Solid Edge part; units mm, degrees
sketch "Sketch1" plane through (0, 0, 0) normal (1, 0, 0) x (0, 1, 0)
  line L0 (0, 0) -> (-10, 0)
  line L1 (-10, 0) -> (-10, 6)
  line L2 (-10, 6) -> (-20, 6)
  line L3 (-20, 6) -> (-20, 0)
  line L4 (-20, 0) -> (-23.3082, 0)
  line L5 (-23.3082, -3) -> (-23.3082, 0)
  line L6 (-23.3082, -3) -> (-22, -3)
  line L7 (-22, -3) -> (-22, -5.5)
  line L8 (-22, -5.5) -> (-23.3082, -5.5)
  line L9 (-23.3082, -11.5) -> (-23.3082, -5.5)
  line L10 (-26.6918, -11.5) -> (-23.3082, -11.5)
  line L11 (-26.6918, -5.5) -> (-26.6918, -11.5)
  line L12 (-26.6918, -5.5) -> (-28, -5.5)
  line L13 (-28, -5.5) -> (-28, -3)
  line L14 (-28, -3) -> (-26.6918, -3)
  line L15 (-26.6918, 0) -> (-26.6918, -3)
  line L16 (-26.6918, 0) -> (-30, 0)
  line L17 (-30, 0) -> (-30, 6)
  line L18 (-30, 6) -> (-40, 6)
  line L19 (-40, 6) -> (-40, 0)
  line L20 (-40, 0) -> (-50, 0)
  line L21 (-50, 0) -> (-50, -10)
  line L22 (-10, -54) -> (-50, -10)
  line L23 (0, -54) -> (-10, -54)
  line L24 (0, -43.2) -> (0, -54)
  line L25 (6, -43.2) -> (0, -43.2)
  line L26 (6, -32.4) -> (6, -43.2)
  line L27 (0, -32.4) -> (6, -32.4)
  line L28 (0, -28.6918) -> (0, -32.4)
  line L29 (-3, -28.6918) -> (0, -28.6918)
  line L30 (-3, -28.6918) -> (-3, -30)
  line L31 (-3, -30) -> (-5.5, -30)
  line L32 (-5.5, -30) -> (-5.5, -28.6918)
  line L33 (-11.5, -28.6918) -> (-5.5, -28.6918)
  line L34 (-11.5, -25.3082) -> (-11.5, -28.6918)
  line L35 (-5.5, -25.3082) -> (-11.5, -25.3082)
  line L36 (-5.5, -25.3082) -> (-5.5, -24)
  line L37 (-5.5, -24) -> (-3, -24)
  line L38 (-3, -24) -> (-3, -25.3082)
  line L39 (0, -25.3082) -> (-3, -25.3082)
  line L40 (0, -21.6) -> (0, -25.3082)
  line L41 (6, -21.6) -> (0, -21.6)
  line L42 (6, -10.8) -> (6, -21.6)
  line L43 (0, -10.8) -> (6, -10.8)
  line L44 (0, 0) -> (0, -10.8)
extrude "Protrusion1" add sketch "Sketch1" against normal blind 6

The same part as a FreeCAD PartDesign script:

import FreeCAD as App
import Part
import Sketcher
from FreeCAD import Vector
Q = App.Units.Quantity


def add_polygon(sketch, points):
    """Adds a closed chain of lines whose ends are joined by coincident constraints."""
    first, n = sketch.GeometryCount, len(points)
    for a, b in zip(points, points[1:] + points[:1]):
        sketch.addGeometry(Part.LineSegment(App.Vector(*a, 0), App.Vector(*b, 0)), False)
    for i in range(n):
        sketch.addConstraint(Sketcher.Constraint("Coincident", first + i, 2, first + (i + 1) % n, 1))

doc = App.newDocument("Part")
body = doc.addObject("PartDesign::Body", "Body")

sketch1 = body.newObject("Sketcher::SketchObject", "Sketch")
sketch1.AttachmentSupport = (doc.getObject("YZ_Plane"), [""])
sketch1.MapMode = "FlatFace"
add_polygon(sketch1, [(0, -10.8), (0, 0), (-10, 0), (-10, 6), (-20, 6), (-20, 0), (-23.3, 0), (-23.3, -3), (-22, -3), (-22, -5.5), (-23.3, -5.5), (-23.3, -11.5), (-26.7, -11.5), (-26.7, -5.5), (-28, -5.5), (-28, -3), (-26.7, -3), (-26.7, 0), (-30, 0), (-30, 6), (-40, 6), (-40, 0), (-50, 0), (-50, -10), (-10, -54), (0, -54), (0, -43.2), (6, -43.2), (6, -32.4), (0, -32.4), (0, -28.7), (-3, -28.7), (-3, -30), (-5.5, -30), (-5.5, -28.7), (-11.5, -28.7), (-11.5, -25.3), (-5.5, -25.3), (-5.5, -24), (-3, -24), (-3, -25.3), (0, -25.3), (0, -21.6), (6, -21.6), (6, -10.8)])
sketch1.addConstraint([
    Sketcher.Constraint("Vertical", 0),
    Sketcher.Constraint("Horizontal", 1),
    Sketcher.Constraint("Vertical", 2),
    Sketcher.Constraint("Horizontal", 3),
    Sketcher.Constraint("Vertical", 4),
    Sketcher.Constraint("Horizontal", 5),
    Sketcher.Constraint("Vertical", 6),
    Sketcher.Constraint("Horizontal", 7),
    Sketcher.Constraint("Vertical", 8),
    Sketcher.Constraint("Horizontal", 9),
    Sketcher.Constraint("Vertical", 10),
    Sketcher.Constraint("Horizontal", 11),
    Sketcher.Constraint("Vertical", 12),
    Sketcher.Constraint("Horizontal", 13),
    Sketcher.Constraint("Vertical", 14),
    Sketcher.Constraint("Horizontal", 15),
    Sketcher.Constraint("Vertical", 16),
    Sketcher.Constraint("Horizontal", 17),
    Sketcher.Constraint("Vertical", 18),
    Sketcher.Constraint("Horizontal", 19),
    Sketcher.Constraint("Vertical", 20),
    Sketcher.Constraint("Horizontal", 21),
    Sketcher.Constraint("Vertical", 22),
    Sketcher.Constraint("Horizontal", 24),
    Sketcher.Constraint("Vertical", 25),
    Sketcher.Constraint("Horizontal", 26),
    Sketcher.Constraint("Vertical", 27),
    Sketcher.Constraint("Horizontal", 28),
    Sketcher.Constraint("Vertical", 29),
    Sketcher.Constraint("Horizontal", 30),
    Sketcher.Constraint("Vertical", 31),
    Sketcher.Constraint("Horizontal", 32),
    Sketcher.Constraint("Vertical", 33),
    Sketcher.Constraint("Horizontal", 34),
    Sketcher.Constraint("Vertical", 35),
    Sketcher.Constraint("Horizontal", 36),
    Sketcher.Constraint("Vertical", 37),
    Sketcher.Constraint("Horizontal", 38),
    Sketcher.Constraint("Vertical", 39),
    Sketcher.Constraint("Horizontal", 40),
    Sketcher.Constraint("Vertical", 41),
    Sketcher.Constraint("Horizontal", 42),
    Sketcher.Constraint("Vertical", 43),
    Sketcher.Constraint("Horizontal", 44),
    Sketcher.Constraint("Coincident", 0, 2, -1, 1),
    Sketcher.Constraint("PointOnObject", 4, 2, -1),
    Sketcher.Constraint("PointOnObject", 16, 2, -1),
    Sketcher.Constraint("PointOnObject", 20, 2, -1),
    Sketcher.Constraint("PointOnObject", 24, 2, -2),
    Sketcher.Constraint("PointOnObject", 28, 2, -2),
    Sketcher.Constraint("PointOnObject", 40, 2, -2),
    Sketcher.Constraint("Horizontal", 9, 2, 12, 2),
    Sketcher.Constraint("Horizontal", 7, 2, 14, 2),
    Sketcher.Constraint("Horizontal", 3, 2, 18, 2),
    Sketcher.Constraint("Horizontal", 30, 2, 33, 2),
    Sketcher.Constraint("Horizontal", 36, 2, 39, 2),
    Sketcher.Constraint("Vertical", 6, 2, 9, 2),
    Sketcher.Constraint("Vertical", 12, 2, 15, 2),
    Sketcher.Constraint("Vertical", 2, 2, 23, 2),
    Sketcher.Constraint("Vertical", 33, 2, 36, 2),
    Sketcher.Constraint("Vertical", 31, 2, 38, 2),
    Sketcher.Constraint("Vertical", 27, 2, 42, 2),
    Sketcher.Constraint("Equal", 1, 3),
    Sketcher.Constraint("Equal", 9, 13),
    Sketcher.Constraint("Equal", 5, 17),
    Sketcher.Constraint("Equal", 3, 19),
    Sketcher.Constraint("Equal", 19, 21),
    Sketcher.Constraint("Equal", 28, 34),
    Sketcher.Constraint("Equal", 44, 2),
    Sketcher.Constraint("Equal", 40, 6),
    Sketcher.Constraint("Equal", 38, 8),
    Sketcher.Constraint("Equal", 4, 10),
    Sketcher.Constraint("Equal", 24, 22),
    Sketcher.Constraint("Equal", 0, 25),
    Sketcher.Constraint("Equal", 25, 27),
    Sketcher.Constraint("Equal", 15, 31),
    Sketcher.Constraint("Equal", 11, 35),
    Sketcher.Constraint("Equal", 33, 37),
    Sketcher.Constraint("Equal", 29, 41),
    Sketcher.Constraint("Equal", 27, 43),
    Sketcher.Constraint("DistanceX", 1, 2, 1, 1, Q("10 mm")),
    Sketcher.Constraint("DistanceX", 26, 1, 26, 2, Q("6 mm")),
    Sketcher.Constraint("DistanceX", 30, 2, 30, 1, Q("3 mm")),
    Sketcher.Constraint("DistanceX", 32, 2, 32, 1, Q("2.5 mm")),
    Sketcher.Constraint("DistanceY", 0, 1, 0, 2, Q("10.8 mm")),
    Sketcher.Constraint("DistanceX", 7, 2, -1, 1, Q("22 mm")),
    Sketcher.Constraint("DistanceX", 13, 2, -1, 1, Q("28 mm")),
    Sketcher.Constraint("DistanceY", 23, 2, -1, 1, Q("54 mm")),
    Sketcher.Constraint("DistanceX", 5, 2, 5, 1, Q("3.3082 mm")),
])
pad1 = body.newObject("PartDesign::Pad", "Pad")
pad1.Profile = sketch1
pad1.Length = 6
pad1.Reversed = True

doc.recompute()
